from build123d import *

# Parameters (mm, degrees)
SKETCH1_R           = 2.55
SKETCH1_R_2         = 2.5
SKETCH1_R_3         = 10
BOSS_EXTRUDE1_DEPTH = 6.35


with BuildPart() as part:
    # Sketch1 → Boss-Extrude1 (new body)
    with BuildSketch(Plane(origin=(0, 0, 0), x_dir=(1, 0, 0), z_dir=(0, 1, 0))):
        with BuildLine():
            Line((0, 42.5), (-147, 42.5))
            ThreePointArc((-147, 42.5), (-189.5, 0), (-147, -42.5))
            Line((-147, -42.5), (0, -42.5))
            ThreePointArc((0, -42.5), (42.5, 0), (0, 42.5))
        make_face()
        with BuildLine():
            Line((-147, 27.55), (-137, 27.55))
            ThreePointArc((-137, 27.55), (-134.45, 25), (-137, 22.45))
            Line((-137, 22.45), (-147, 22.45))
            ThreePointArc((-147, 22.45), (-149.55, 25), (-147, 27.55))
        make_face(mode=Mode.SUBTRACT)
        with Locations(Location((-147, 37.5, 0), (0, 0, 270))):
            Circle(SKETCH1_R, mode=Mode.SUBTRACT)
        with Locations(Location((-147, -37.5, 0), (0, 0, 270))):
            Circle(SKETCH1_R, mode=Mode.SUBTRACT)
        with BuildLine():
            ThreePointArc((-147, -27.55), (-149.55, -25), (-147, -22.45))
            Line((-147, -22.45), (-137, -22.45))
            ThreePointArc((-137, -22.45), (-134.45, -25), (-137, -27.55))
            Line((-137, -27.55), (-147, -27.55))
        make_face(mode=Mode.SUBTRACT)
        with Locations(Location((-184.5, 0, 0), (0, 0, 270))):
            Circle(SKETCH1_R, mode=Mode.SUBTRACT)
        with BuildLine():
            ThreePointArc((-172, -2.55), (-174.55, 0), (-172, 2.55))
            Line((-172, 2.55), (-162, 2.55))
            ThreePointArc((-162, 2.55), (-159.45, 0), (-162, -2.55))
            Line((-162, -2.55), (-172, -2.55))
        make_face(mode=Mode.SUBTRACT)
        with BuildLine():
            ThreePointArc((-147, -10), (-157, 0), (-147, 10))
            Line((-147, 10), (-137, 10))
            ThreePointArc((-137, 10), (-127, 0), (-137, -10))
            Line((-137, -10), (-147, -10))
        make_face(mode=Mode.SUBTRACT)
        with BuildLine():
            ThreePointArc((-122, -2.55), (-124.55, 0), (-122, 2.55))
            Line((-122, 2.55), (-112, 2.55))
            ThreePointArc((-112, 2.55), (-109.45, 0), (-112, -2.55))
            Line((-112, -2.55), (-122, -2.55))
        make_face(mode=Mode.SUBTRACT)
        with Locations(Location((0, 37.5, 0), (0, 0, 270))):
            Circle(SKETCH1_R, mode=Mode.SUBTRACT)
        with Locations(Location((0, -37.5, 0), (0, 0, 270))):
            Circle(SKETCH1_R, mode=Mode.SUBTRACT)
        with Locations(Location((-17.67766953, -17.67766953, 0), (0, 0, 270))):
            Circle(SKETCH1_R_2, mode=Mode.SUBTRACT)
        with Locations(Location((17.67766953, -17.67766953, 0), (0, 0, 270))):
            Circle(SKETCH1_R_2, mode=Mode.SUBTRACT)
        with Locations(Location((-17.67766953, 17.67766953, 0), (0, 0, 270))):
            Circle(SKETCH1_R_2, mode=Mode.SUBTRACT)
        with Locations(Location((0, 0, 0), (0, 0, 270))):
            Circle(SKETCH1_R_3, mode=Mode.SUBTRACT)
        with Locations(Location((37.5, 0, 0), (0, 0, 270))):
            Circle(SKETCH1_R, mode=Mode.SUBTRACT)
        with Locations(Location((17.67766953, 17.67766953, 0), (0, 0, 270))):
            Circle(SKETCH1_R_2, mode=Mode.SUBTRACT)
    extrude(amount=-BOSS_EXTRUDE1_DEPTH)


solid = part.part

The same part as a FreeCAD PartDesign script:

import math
import FreeCAD as App
import Part
import Sketcher

V = App.Vector
Q = App.Units.Quantity

doc = App.newDocument("Part")
body = doc.addObject("PartDesign::Body", "Body")

# Sketch on XZ plane
sketch1 = body.newObject("Sketcher::SketchObject", "Sketch")
sketch1.AttachmentSupport = (doc.getObject("XZ_Plane"), [""])
sketch1.MapMode = "FlatFace"
sketch1.addGeometry([
    Part.LineSegment(V(0, -42.5, 0), V(-147, -42.5, 0)),  # 0
    Part.ArcOfCircle(Part.Circle(V(-147, 0, 0), V(0, 0, 1), 42.5), math.radians(90), math.radians(270)),  # 1
    Part.LineSegment(V(-147, 42.5, 0), V(0, 42.5, 0)),  # 2
    Part.ArcOfCircle(Part.Circle(V(0, 0, 0), V(0, 0, 1), 42.5), math.radians(-90), math.radians(90)),  # 3
    Part.Circle(V(-147, 37.5, 0), V(0, 0, 1), 2.5),  # 4
    Part.LineSegment(V(-137, 27.6, 0), V(-147, 27.6, 0)),  # 5
    Part.ArcOfCircle(Part.Circle(V(-147, 25, 0), V(0, 0, 1), 2.5), math.radians(90), math.radians(270)),  # 6
    Part.LineSegment(V(-147, 22.4, 0), V(-137, 22.4, 0)),  # 7
    Part.ArcOfCircle(Part.Circle(V(-137, 25, 0), V(0, 0, 1), 2.5), math.radians(-90), math.radians(90)),  # 8
    Part.Circle(V(0, 37.5, 0), V(0, 0, 1), 2.5),  # 9
    Part.Circle(V(-17.7, 17.7, 0), V(0, 0, 1), 2.5),  # 10
    Part.Circle(V(17.7, 17.7, 0), V(0, 0, 1), 2.5),  # 11
    Part.Circle(V(-184.5, 0, 0), V(0, 0, 1), 2.5),  # 12
    Part.LineSegment(V(-162, 2.5, 0), V(-172, 2.5, 0)),  # 13
    Part.ArcOfCircle(Part.Circle(V(-172, 0, 0), V(0, 0, 1), 2.5), math.radians(90), math.radians(270)),  # 14
    Part.LineSegment(V(-172, -2.5, 0), V(-162, -2.5, 0)),  # 15
    Part.ArcOfCircle(Part.Circle(V(-162, 0, 0), V(0, 0, 1), 2.5), math.radians(-90), math.radians(90)),  # 16
    Part.LineSegment(V(-137, 10, 0), V(-147, 10, 0)),  # 17
    Part.ArcOfCircle(Part.Circle(V(-147, 0, 0), V(0, 0, 1), 10), math.radians(90), math.radians(270)),  # 18
    Part.LineSegment(V(-147, -10, 0), V(-137, -10, 0)),  # 19
    Part.ArcOfCircle(Part.Circle(V(-137, 0, 0), V(0, 0, 1), 10), math.radians(-90), math.radians(90)),  # 20
    Part.LineSegment(V(-112, 2.5, 0), V(-122, 2.5, 0)),  # 21
    Part.ArcOfCircle(Part.Circle(V(-122, 0, 0), V(0, 0, 1), 2.5), math.radians(90), math.radians(270)),  # 22
    Part.LineSegment(V(-122, -2.5, 0), V(-112, -2.5, 0)),  # 23
    Part.ArcOfCircle(Part.Circle(V(-112, 0, 0), V(0, 0, 1), 2.5), math.radians(-90), math.radians(90)),  # 24
    Part.ArcOfCircle(Part.Circle(V(-147, -25, 0), V(0, 0, 1), 2.5), math.radians(90), math.radians(270)),  # 25
    Part.LineSegment(V(-147, -27.6, 0), V(-137, -27.6, 0)),  # 26
    Part.ArcOfCircle(Part.Circle(V(-137, -25, 0), V(0, 0, 1), 2.5), math.radians(-90), math.radians(90)),  # 27
    Part.LineSegment(V(-137, -22.4, 0), V(-147, -22.4, 0)),  # 28
    Part.Circle(V(-147, -37.5, 0), V(0, 0, 1), 2.5),  # 29
    Part.Circle(V(-17.7, -17.7, 0), V(0, 0, 1), 2.5),  # 30
    Part.Circle(V(0, 0, 0), V(0, 0, 1), 10),  # 31
    Part.Circle(V(37.5, 0, 0), V(0, 0, 1), 2.5),  # 32
    Part.Circle(V(17.7, -17.7, 0), V(0, 0, 1), 2.5),  # 33
    Part.Circle(V(0, -37.5, 0), V(0, 0, 1), 2.5),  # 34
], False)
sketch1.addConstraint([
    Sketcher.Constraint("Tangent", 0, 2, 1, 2),
    Sketcher.Constraint("Tangent", 1, 1, 2, 1),
    Sketcher.Constraint("Tangent", 2, 2, 3, 2),
    Sketcher.Constraint("Tangent", 3, 1, 0, 1),
    Sketcher.Constraint("Tangent", 5, 2, 6, 1),
    Sketcher.Constraint("Tangent", 6, 2, 7, 1),
    Sketcher.Constraint("Tangent", 7, 2, 8, 1),
    Sketcher.Constraint("Tangent", 8, 2, 5, 1),
    Sketcher.Constraint("Tangent", 13, 2, 14, 1),
    Sketcher.Constraint("Tangent", 14, 2, 15, 1),
    Sketcher.Constraint("Tangent", 15, 2, 16, 1),
    Sketcher.Constraint("Tangent", 16, 2, 13, 1),
    Sketcher.Constraint("Tangent", 17, 2, 18, 1),
    Sketcher.Constraint("Tangent", 18, 2, 19, 1),
    Sketcher.Constraint("Tangent", 19, 2, 20, 1),
    Sketcher.Constraint("Tangent", 20, 2, 17, 1),
    Sketcher.Constraint("Tangent", 21, 2, 22, 1),
    Sketcher.Constraint("Tangent", 22, 2, 23, 1),
    Sketcher.Constraint("Tangent", 23, 2, 24, 1),
    Sketcher.Constraint("Tangent", 24, 2, 21, 1),
    Sketcher.Constraint("Tangent", 25, 2, 26, 1),
    Sketcher.Constraint("Tangent", 26, 2, 27, 1),
    Sketcher.Constraint("Tangent", 27, 2, 28, 1),
    Sketcher.Constraint("Tangent", 28, 2, 25, 1),
    Sketcher.Constraint("Horizontal", 0),
    Sketcher.Constraint("Horizontal", 2),
    Sketcher.Constraint("Horizontal", 5),
    Sketcher.Constraint("Horizontal", 7),
    Sketcher.Constraint("Horizontal", 13),
    Sketcher.Constraint("Horizontal", 15),
    Sketcher.Constraint("Horizontal", 17),
    Sketcher.Constraint("Horizontal", 19),
    Sketcher.Constraint("Horizontal", 21),
    Sketcher.Constraint("Horizontal", 23),
    Sketcher.Constraint("Horizontal", 26),
    Sketcher.Constraint("Horizontal", 28),
    Sketcher.Constraint("Coincident", 3, 3, -1, 1),
    Sketcher.Constraint("Coincident", 31, 3, -1, 1),
    Sketcher.Constraint("Coincident", 18, 3, 1, 3),
    Sketcher.Constraint("Equal", 4, 6),
    Sketcher.Constraint("Equal", 8, 9),
    Sketcher.Constraint("Equal", 10, 11),
    Sketcher.Constraint("Equal", 9, 12),
    Sketcher.Constraint("Equal", 12, 14),
    Sketcher.Constraint("Equal", 16, 22),
    Sketcher.Constraint("Equal", 24, 25),
    Sketcher.Constraint("Equal", 27, 29),
    Sketcher.Constraint("Equal", 11, 30),
    Sketcher.Constraint("Equal", 20, 31),
    Sketcher.Constraint("Equal", 29, 32),
    Sketcher.Constraint("Equal", 30, 33),
    Sketcher.Constraint("Equal", 32, 34),
    Sketcher.Constraint("Symmetric", 11, 3, 30, 3, -1, 1),
    Sketcher.Constraint("Symmetric", 10, 3, 33, 3, -1, 1),
    Sketcher.Constraint("Symmetric", 9, 3, 34, 3, -1, 1),
    Sketcher.Constraint("Symmetric", 10, 3, 11, 3, -2),
    Sketcher.Constraint("Symmetric", 6, 3, 25, 3, -1),
    Sketcher.Constraint("Symmetric", 4, 3, 29, 3, -1),
    Sketcher.Constraint("PointOnObject", 9, 3, -2),
    Sketcher.Constraint("PointOnObject", 12, 3, -1),
    Sketcher.Constraint("PointOnObject", 14, 3, -1),
    Sketcher.Constraint("PointOnObject", 22, 3, -1),
    Sketcher.Constraint("PointOnObject", 32, 3, -1),
    Sketcher.Constraint("Horizontal", 4, 3, 9, 3),
    Sketcher.Constraint("Vertical", 1, 3, 4, 3),
    Sketcher.Constraint("Vertical", 4, 3, 6, 3),
    Sketcher.Constraint("Vertical", 8, 3, 20, 3),
    Sketcher.Constraint("Vertical", 20, 3, 27, 3),
    Sketcher.Constraint("Equal", 7, 13),
    Sketcher.Constraint("Equal", 19, 21),
    Sketcher.Constraint("Diameter", 10, Q("5 mm")),
    Sketcher.Constraint("Diameter", 31, Q("20 mm")),
    Sketcher.Constraint("Diameter", 4, Q("5.1 mm")),
    Sketcher.Constraint("Radius", 1, Q("42.5 mm")),
    Sketcher.Constraint("DistanceX", 0, 2, 0, 1, Q("147 mm")),
    Sketcher.Constraint("DistanceX", 5, 2, 5, 1, Q("10 mm")),
    Sketcher.Constraint("DistanceY", -1, 1, 6, 3, Q("25 mm")),
    Sketcher.Constraint("DistanceX", 14, 3, -1, 1, Q("172 mm")),
    Sketcher.Constraint("DistanceX", 22, 3, -1, 1, Q("122 mm")),
    Sketcher.Constraint("DistanceY", 0, 2, 29, 3, Q("5 mm")),
    Sketcher.Constraint("DistanceX", 12, 3, -1, 1, Q("184.5 mm")),
    Sketcher.Constraint("DistanceX", -1, 1, 32, 3, Q("37.5 mm")),
    Sketcher.Constraint("DistanceX", 10, 3, -1, 1, Q("17.67767 mm")),
    Sketcher.Constraint("DistanceY", -1, 1, 10, 3, Q("17.67767 mm")),
])
pad1 = body.newObject("PartDesign::Pad", "Pad")
pad1.Profile = sketch1
pad1.Length = 6.35

doc.recompute()
